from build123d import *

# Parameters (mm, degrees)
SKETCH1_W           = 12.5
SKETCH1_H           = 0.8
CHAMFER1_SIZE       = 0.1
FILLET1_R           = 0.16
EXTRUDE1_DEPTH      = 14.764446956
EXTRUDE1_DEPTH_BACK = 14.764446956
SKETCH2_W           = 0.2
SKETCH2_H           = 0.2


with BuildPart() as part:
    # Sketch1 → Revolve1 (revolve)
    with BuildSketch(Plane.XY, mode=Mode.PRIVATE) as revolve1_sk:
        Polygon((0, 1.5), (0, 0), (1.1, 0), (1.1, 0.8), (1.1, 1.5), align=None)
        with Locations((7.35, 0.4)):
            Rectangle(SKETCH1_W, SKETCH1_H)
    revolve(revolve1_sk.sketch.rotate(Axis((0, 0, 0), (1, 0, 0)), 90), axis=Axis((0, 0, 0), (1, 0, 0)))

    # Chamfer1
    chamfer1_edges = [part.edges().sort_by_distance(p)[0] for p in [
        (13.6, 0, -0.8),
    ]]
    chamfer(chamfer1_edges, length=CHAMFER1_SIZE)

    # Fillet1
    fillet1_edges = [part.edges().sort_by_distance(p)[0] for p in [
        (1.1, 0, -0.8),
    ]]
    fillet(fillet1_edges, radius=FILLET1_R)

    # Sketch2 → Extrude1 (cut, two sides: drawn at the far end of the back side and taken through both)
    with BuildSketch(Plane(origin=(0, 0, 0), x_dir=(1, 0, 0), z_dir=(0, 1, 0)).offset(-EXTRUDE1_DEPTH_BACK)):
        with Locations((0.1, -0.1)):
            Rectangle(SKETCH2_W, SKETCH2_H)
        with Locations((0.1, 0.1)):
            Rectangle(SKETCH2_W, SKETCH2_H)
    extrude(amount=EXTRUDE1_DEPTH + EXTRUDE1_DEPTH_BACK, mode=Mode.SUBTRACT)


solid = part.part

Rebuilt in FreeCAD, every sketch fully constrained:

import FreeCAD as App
import Part
import Sketcher


def edges_at(feature, points):
    """Names of the edges that pass closest to the given points."""
    edges = feature.Shape.Edges
    near = lambda p: min(range(len(edges)), key=lambda i: edges[i].distToShape(Part.Vertex(*p))[0])
    return sorted({f"Edge{near(p) + 1}" for p in points})


def add_polygon(sketch, points):
    """Adds a closed chain of lines whose ends are joined by coincident constraints."""
    first, n = sketch.GeometryCount, len(points)
    for a, b in zip(points, points[1:] + points[:1]):
        sketch.addGeometry(Part.LineSegment(App.Vector(*a, 0), App.Vector(*b, 0)), False)
    for i in range(n):
        sketch.addConstraint(Sketcher.Constraint("Coincident", first + i, 2, first + (i + 1) % n, 1))

doc = App.newDocument("Part")
params = doc.addObject("Spreadsheet::Sheet", "Params")
for row, (alias, value) in enumerate([
    ("sketch1_width", "13.6 mm"),
    ("sketch1_width2", "12.5 mm"),
    ("sketch1_height", "1.5 mm"),
    ("sketch1_height2", "0.8 mm"),
    ("revolution_angle", "360 deg"),
    ("chamfer_size", "0.1 mm"),
    ("fillet_radius", "0.16 mm"),
    ("sketch2_width", "0.2 mm"),
    ("sketch2_height", "0.4 mm"),
], start=1):
    params.set(f"A{row}", alias)
    params.set(f"B{row}", "=" + value)
    params.setAlias(f"B{row}", alias)

body = doc.addObject("PartDesign::Body", "Body")

sketch1 = body.newObject("Sketcher::SketchObject", "Sketch")
sketch1.AttachmentSupport = (doc.getObject("XY_Plane"), [""])
sketch1.MapMode = "FlatFace"
add_polygon(sketch1, [(0, 1.5), (0, 0), (13.6, 0), (13.6, 0.8), (1.1, 0.8), (1.1, 1.5)])
sketch1.addConstraint([
    Sketcher.Constraint("Vertical", 0),
    Sketcher.Constraint("Horizontal", 1),
    Sketcher.Constraint("Vertical", 2),
    Sketcher.Constraint("Horizontal", 3),
    Sketcher.Constraint("Vertical", 4),
    Sketcher.Constraint("Horizontal", 5),
    Sketcher.Constraint("Coincident", 0, 2, -1, 1),
    Sketcher.Constraint("DistanceX", 1, 1, 1, 2, 13.6),
    Sketcher.Constraint("DistanceX", 3, 2, 3, 1, 12.5),
    Sketcher.Constraint("DistanceY", 0, 2, 0, 1, 1.5),
    Sketcher.Constraint("DistanceY", 2, 1, 2, 2, 0.8),
])
sketch1.setExpression("Constraints[13]", "Params.sketch1_width")
sketch1.setExpression("Constraints[14]", "Params.sketch1_width2")
sketch1.setExpression("Constraints[15]", "Params.sketch1_height")
sketch1.setExpression("Constraints[16]", "Params.sketch1_height2")
revolution = body.newObject("PartDesign::Revolution", "Revolution")
revolution.Profile = sketch1
revolution.ReferenceAxis = (sketch1, ["H_Axis"])
revolution.setExpression("Angle", "Params.revolution_angle")
doc.recompute()

chamfer = body.newObject("PartDesign::Chamfer", "Chamfer")
chamfer.Base = (revolution, edges_at(revolution, [(13.6, 0, -0.8)]))
chamfer.setExpression("Size", "Params.chamfer_size")
doc.recompute()

fillet = body.newObject("PartDesign::Fillet", "Fillet")
fillet.Base = (chamfer, edges_at(chamfer, [(1.1, 0, -0.8)]))
fillet.setExpression("Radius", "Params.fillet_radius")

sketch2 = body.newObject("Sketcher::SketchObject", "Sketch001")
sketch2.AttachmentSupport = (doc.getObject("XZ_Plane"), [""])
sketch2.MapMode = "FlatFace"
add_polygon(sketch2, [(0, 0.2), (0.2, 0.2), (0.2, -0.2), (0, -0.2)])
sketch2.addConstraint([
    Sketcher.Constraint("Horizontal", 0),
    Sketcher.Constraint("Vertical", 1),
    Sketcher.Constraint("Horizontal", 2),
    Sketcher.Constraint("Vertical", 3),
    Sketcher.Constraint("Symmetric", 2, 2, 3, 2, -1, 1),
    Sketcher.Constraint("DistanceX", 0, 1, 0, 2, 0.2),
    Sketcher.Constraint("DistanceY", 1, 2, 1, 1, 0.4),
])
sketch2.setExpression("Constraints[9]", "Params.sketch2_width")
sketch2.setExpression("Constraints[10]", "Params.sketch2_height")
pocket1 = body.newObject("PartDesign::Pocket", "Pocket")
pocket1.Profile = sketch2
pocket1.Type = "ThroughAll"
pocket1.Midplane = True

doc.recompute()
